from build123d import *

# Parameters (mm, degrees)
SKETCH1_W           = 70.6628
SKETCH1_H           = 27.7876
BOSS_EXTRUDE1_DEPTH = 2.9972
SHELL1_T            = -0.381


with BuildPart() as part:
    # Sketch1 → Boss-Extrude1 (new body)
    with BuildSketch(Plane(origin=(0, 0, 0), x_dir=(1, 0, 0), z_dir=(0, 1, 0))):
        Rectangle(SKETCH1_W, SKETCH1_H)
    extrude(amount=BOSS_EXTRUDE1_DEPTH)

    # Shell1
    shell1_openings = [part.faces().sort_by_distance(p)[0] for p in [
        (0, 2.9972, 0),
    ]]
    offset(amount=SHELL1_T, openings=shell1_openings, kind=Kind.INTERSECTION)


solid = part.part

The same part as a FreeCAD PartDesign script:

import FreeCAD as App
import Part
import Sketcher
Q = App.Units.Quantity


def faces_at(feature, points):
    """Names of the faces that lie closest to the given points."""
    faces = feature.Shape.Faces
    near = lambda p: min(range(len(faces)), key=lambda i: faces[i].distToShape(Part.Vertex(*p))[0])
    return sorted({f"Face{near(p) + 1}" for p in points})


def add_polygon(sketch, points):
    """Adds a closed chain of lines whose ends are joined by coincident constraints."""
    first, n = sketch.GeometryCount, len(points)
    for a, b in zip(points, points[1:] + points[:1]):
        sketch.addGeometry(Part.LineSegment(App.Vector(*a, 0), App.Vector(*b, 0)), False)
    for i in range(n):
        sketch.addConstraint(Sketcher.Constraint("Coincident", first + i, 2, first + (i + 1) % n, 1))

doc = App.newDocument("Part")
body = doc.addObject("PartDesign::Body", "Body")

# Sketch on XZ plane
sketch1 = doc.addObject("Sketcher::SketchObject", "Sketch")
body.addObject(sketch1)
sketch1.AttachmentSupport = (doc.XZ_Plane, [""])
sketch1.MapMode = "FlatFace"
add_polygon(sketch1, [(-35, -14), (-35, 14), (35, 14), (35, -14)])  # lines 0-3
sketch1.addConstraint(Sketcher.Constraint("Vertical", 0))
sketch1.addConstraint(Sketcher.Constraint("Horizontal", 1))
sketch1.addConstraint(Sketcher.Constraint("Vertical", 2))
sketch1.addConstraint(Sketcher.Constraint("Horizontal", 3))
sketch1.addConstraint(Sketcher.Constraint("Symmetric", 0, 2, 2, 2, -1, 1))
sketch1.addConstraint(Sketcher.Constraint("DistanceX", 1, 1, 1, 2, Q("2.782 in")))
sketch1.addConstraint(Sketcher.Constraint("DistanceY", 0, 1, 0, 2, Q("1.094 in")))
pad1 = doc.addObject("PartDesign::Pad", "Pad")
body.addObject(pad1)
pad1.Profile = sketch1
pad1.Length = Q("0.118 in")
pad1.Reversed = True
doc.recompute()

thickness = doc.addObject("PartDesign::Thickness", "Thickness")
body.addObject(thickness)
thickness.Base = (pad1, faces_at(pad1, [(0, 2.997, 0)]))
thickness.Value = Q("0.015 in")
thickness.Reversed = True
thickness.Join = "Intersection"

doc.recompute()
